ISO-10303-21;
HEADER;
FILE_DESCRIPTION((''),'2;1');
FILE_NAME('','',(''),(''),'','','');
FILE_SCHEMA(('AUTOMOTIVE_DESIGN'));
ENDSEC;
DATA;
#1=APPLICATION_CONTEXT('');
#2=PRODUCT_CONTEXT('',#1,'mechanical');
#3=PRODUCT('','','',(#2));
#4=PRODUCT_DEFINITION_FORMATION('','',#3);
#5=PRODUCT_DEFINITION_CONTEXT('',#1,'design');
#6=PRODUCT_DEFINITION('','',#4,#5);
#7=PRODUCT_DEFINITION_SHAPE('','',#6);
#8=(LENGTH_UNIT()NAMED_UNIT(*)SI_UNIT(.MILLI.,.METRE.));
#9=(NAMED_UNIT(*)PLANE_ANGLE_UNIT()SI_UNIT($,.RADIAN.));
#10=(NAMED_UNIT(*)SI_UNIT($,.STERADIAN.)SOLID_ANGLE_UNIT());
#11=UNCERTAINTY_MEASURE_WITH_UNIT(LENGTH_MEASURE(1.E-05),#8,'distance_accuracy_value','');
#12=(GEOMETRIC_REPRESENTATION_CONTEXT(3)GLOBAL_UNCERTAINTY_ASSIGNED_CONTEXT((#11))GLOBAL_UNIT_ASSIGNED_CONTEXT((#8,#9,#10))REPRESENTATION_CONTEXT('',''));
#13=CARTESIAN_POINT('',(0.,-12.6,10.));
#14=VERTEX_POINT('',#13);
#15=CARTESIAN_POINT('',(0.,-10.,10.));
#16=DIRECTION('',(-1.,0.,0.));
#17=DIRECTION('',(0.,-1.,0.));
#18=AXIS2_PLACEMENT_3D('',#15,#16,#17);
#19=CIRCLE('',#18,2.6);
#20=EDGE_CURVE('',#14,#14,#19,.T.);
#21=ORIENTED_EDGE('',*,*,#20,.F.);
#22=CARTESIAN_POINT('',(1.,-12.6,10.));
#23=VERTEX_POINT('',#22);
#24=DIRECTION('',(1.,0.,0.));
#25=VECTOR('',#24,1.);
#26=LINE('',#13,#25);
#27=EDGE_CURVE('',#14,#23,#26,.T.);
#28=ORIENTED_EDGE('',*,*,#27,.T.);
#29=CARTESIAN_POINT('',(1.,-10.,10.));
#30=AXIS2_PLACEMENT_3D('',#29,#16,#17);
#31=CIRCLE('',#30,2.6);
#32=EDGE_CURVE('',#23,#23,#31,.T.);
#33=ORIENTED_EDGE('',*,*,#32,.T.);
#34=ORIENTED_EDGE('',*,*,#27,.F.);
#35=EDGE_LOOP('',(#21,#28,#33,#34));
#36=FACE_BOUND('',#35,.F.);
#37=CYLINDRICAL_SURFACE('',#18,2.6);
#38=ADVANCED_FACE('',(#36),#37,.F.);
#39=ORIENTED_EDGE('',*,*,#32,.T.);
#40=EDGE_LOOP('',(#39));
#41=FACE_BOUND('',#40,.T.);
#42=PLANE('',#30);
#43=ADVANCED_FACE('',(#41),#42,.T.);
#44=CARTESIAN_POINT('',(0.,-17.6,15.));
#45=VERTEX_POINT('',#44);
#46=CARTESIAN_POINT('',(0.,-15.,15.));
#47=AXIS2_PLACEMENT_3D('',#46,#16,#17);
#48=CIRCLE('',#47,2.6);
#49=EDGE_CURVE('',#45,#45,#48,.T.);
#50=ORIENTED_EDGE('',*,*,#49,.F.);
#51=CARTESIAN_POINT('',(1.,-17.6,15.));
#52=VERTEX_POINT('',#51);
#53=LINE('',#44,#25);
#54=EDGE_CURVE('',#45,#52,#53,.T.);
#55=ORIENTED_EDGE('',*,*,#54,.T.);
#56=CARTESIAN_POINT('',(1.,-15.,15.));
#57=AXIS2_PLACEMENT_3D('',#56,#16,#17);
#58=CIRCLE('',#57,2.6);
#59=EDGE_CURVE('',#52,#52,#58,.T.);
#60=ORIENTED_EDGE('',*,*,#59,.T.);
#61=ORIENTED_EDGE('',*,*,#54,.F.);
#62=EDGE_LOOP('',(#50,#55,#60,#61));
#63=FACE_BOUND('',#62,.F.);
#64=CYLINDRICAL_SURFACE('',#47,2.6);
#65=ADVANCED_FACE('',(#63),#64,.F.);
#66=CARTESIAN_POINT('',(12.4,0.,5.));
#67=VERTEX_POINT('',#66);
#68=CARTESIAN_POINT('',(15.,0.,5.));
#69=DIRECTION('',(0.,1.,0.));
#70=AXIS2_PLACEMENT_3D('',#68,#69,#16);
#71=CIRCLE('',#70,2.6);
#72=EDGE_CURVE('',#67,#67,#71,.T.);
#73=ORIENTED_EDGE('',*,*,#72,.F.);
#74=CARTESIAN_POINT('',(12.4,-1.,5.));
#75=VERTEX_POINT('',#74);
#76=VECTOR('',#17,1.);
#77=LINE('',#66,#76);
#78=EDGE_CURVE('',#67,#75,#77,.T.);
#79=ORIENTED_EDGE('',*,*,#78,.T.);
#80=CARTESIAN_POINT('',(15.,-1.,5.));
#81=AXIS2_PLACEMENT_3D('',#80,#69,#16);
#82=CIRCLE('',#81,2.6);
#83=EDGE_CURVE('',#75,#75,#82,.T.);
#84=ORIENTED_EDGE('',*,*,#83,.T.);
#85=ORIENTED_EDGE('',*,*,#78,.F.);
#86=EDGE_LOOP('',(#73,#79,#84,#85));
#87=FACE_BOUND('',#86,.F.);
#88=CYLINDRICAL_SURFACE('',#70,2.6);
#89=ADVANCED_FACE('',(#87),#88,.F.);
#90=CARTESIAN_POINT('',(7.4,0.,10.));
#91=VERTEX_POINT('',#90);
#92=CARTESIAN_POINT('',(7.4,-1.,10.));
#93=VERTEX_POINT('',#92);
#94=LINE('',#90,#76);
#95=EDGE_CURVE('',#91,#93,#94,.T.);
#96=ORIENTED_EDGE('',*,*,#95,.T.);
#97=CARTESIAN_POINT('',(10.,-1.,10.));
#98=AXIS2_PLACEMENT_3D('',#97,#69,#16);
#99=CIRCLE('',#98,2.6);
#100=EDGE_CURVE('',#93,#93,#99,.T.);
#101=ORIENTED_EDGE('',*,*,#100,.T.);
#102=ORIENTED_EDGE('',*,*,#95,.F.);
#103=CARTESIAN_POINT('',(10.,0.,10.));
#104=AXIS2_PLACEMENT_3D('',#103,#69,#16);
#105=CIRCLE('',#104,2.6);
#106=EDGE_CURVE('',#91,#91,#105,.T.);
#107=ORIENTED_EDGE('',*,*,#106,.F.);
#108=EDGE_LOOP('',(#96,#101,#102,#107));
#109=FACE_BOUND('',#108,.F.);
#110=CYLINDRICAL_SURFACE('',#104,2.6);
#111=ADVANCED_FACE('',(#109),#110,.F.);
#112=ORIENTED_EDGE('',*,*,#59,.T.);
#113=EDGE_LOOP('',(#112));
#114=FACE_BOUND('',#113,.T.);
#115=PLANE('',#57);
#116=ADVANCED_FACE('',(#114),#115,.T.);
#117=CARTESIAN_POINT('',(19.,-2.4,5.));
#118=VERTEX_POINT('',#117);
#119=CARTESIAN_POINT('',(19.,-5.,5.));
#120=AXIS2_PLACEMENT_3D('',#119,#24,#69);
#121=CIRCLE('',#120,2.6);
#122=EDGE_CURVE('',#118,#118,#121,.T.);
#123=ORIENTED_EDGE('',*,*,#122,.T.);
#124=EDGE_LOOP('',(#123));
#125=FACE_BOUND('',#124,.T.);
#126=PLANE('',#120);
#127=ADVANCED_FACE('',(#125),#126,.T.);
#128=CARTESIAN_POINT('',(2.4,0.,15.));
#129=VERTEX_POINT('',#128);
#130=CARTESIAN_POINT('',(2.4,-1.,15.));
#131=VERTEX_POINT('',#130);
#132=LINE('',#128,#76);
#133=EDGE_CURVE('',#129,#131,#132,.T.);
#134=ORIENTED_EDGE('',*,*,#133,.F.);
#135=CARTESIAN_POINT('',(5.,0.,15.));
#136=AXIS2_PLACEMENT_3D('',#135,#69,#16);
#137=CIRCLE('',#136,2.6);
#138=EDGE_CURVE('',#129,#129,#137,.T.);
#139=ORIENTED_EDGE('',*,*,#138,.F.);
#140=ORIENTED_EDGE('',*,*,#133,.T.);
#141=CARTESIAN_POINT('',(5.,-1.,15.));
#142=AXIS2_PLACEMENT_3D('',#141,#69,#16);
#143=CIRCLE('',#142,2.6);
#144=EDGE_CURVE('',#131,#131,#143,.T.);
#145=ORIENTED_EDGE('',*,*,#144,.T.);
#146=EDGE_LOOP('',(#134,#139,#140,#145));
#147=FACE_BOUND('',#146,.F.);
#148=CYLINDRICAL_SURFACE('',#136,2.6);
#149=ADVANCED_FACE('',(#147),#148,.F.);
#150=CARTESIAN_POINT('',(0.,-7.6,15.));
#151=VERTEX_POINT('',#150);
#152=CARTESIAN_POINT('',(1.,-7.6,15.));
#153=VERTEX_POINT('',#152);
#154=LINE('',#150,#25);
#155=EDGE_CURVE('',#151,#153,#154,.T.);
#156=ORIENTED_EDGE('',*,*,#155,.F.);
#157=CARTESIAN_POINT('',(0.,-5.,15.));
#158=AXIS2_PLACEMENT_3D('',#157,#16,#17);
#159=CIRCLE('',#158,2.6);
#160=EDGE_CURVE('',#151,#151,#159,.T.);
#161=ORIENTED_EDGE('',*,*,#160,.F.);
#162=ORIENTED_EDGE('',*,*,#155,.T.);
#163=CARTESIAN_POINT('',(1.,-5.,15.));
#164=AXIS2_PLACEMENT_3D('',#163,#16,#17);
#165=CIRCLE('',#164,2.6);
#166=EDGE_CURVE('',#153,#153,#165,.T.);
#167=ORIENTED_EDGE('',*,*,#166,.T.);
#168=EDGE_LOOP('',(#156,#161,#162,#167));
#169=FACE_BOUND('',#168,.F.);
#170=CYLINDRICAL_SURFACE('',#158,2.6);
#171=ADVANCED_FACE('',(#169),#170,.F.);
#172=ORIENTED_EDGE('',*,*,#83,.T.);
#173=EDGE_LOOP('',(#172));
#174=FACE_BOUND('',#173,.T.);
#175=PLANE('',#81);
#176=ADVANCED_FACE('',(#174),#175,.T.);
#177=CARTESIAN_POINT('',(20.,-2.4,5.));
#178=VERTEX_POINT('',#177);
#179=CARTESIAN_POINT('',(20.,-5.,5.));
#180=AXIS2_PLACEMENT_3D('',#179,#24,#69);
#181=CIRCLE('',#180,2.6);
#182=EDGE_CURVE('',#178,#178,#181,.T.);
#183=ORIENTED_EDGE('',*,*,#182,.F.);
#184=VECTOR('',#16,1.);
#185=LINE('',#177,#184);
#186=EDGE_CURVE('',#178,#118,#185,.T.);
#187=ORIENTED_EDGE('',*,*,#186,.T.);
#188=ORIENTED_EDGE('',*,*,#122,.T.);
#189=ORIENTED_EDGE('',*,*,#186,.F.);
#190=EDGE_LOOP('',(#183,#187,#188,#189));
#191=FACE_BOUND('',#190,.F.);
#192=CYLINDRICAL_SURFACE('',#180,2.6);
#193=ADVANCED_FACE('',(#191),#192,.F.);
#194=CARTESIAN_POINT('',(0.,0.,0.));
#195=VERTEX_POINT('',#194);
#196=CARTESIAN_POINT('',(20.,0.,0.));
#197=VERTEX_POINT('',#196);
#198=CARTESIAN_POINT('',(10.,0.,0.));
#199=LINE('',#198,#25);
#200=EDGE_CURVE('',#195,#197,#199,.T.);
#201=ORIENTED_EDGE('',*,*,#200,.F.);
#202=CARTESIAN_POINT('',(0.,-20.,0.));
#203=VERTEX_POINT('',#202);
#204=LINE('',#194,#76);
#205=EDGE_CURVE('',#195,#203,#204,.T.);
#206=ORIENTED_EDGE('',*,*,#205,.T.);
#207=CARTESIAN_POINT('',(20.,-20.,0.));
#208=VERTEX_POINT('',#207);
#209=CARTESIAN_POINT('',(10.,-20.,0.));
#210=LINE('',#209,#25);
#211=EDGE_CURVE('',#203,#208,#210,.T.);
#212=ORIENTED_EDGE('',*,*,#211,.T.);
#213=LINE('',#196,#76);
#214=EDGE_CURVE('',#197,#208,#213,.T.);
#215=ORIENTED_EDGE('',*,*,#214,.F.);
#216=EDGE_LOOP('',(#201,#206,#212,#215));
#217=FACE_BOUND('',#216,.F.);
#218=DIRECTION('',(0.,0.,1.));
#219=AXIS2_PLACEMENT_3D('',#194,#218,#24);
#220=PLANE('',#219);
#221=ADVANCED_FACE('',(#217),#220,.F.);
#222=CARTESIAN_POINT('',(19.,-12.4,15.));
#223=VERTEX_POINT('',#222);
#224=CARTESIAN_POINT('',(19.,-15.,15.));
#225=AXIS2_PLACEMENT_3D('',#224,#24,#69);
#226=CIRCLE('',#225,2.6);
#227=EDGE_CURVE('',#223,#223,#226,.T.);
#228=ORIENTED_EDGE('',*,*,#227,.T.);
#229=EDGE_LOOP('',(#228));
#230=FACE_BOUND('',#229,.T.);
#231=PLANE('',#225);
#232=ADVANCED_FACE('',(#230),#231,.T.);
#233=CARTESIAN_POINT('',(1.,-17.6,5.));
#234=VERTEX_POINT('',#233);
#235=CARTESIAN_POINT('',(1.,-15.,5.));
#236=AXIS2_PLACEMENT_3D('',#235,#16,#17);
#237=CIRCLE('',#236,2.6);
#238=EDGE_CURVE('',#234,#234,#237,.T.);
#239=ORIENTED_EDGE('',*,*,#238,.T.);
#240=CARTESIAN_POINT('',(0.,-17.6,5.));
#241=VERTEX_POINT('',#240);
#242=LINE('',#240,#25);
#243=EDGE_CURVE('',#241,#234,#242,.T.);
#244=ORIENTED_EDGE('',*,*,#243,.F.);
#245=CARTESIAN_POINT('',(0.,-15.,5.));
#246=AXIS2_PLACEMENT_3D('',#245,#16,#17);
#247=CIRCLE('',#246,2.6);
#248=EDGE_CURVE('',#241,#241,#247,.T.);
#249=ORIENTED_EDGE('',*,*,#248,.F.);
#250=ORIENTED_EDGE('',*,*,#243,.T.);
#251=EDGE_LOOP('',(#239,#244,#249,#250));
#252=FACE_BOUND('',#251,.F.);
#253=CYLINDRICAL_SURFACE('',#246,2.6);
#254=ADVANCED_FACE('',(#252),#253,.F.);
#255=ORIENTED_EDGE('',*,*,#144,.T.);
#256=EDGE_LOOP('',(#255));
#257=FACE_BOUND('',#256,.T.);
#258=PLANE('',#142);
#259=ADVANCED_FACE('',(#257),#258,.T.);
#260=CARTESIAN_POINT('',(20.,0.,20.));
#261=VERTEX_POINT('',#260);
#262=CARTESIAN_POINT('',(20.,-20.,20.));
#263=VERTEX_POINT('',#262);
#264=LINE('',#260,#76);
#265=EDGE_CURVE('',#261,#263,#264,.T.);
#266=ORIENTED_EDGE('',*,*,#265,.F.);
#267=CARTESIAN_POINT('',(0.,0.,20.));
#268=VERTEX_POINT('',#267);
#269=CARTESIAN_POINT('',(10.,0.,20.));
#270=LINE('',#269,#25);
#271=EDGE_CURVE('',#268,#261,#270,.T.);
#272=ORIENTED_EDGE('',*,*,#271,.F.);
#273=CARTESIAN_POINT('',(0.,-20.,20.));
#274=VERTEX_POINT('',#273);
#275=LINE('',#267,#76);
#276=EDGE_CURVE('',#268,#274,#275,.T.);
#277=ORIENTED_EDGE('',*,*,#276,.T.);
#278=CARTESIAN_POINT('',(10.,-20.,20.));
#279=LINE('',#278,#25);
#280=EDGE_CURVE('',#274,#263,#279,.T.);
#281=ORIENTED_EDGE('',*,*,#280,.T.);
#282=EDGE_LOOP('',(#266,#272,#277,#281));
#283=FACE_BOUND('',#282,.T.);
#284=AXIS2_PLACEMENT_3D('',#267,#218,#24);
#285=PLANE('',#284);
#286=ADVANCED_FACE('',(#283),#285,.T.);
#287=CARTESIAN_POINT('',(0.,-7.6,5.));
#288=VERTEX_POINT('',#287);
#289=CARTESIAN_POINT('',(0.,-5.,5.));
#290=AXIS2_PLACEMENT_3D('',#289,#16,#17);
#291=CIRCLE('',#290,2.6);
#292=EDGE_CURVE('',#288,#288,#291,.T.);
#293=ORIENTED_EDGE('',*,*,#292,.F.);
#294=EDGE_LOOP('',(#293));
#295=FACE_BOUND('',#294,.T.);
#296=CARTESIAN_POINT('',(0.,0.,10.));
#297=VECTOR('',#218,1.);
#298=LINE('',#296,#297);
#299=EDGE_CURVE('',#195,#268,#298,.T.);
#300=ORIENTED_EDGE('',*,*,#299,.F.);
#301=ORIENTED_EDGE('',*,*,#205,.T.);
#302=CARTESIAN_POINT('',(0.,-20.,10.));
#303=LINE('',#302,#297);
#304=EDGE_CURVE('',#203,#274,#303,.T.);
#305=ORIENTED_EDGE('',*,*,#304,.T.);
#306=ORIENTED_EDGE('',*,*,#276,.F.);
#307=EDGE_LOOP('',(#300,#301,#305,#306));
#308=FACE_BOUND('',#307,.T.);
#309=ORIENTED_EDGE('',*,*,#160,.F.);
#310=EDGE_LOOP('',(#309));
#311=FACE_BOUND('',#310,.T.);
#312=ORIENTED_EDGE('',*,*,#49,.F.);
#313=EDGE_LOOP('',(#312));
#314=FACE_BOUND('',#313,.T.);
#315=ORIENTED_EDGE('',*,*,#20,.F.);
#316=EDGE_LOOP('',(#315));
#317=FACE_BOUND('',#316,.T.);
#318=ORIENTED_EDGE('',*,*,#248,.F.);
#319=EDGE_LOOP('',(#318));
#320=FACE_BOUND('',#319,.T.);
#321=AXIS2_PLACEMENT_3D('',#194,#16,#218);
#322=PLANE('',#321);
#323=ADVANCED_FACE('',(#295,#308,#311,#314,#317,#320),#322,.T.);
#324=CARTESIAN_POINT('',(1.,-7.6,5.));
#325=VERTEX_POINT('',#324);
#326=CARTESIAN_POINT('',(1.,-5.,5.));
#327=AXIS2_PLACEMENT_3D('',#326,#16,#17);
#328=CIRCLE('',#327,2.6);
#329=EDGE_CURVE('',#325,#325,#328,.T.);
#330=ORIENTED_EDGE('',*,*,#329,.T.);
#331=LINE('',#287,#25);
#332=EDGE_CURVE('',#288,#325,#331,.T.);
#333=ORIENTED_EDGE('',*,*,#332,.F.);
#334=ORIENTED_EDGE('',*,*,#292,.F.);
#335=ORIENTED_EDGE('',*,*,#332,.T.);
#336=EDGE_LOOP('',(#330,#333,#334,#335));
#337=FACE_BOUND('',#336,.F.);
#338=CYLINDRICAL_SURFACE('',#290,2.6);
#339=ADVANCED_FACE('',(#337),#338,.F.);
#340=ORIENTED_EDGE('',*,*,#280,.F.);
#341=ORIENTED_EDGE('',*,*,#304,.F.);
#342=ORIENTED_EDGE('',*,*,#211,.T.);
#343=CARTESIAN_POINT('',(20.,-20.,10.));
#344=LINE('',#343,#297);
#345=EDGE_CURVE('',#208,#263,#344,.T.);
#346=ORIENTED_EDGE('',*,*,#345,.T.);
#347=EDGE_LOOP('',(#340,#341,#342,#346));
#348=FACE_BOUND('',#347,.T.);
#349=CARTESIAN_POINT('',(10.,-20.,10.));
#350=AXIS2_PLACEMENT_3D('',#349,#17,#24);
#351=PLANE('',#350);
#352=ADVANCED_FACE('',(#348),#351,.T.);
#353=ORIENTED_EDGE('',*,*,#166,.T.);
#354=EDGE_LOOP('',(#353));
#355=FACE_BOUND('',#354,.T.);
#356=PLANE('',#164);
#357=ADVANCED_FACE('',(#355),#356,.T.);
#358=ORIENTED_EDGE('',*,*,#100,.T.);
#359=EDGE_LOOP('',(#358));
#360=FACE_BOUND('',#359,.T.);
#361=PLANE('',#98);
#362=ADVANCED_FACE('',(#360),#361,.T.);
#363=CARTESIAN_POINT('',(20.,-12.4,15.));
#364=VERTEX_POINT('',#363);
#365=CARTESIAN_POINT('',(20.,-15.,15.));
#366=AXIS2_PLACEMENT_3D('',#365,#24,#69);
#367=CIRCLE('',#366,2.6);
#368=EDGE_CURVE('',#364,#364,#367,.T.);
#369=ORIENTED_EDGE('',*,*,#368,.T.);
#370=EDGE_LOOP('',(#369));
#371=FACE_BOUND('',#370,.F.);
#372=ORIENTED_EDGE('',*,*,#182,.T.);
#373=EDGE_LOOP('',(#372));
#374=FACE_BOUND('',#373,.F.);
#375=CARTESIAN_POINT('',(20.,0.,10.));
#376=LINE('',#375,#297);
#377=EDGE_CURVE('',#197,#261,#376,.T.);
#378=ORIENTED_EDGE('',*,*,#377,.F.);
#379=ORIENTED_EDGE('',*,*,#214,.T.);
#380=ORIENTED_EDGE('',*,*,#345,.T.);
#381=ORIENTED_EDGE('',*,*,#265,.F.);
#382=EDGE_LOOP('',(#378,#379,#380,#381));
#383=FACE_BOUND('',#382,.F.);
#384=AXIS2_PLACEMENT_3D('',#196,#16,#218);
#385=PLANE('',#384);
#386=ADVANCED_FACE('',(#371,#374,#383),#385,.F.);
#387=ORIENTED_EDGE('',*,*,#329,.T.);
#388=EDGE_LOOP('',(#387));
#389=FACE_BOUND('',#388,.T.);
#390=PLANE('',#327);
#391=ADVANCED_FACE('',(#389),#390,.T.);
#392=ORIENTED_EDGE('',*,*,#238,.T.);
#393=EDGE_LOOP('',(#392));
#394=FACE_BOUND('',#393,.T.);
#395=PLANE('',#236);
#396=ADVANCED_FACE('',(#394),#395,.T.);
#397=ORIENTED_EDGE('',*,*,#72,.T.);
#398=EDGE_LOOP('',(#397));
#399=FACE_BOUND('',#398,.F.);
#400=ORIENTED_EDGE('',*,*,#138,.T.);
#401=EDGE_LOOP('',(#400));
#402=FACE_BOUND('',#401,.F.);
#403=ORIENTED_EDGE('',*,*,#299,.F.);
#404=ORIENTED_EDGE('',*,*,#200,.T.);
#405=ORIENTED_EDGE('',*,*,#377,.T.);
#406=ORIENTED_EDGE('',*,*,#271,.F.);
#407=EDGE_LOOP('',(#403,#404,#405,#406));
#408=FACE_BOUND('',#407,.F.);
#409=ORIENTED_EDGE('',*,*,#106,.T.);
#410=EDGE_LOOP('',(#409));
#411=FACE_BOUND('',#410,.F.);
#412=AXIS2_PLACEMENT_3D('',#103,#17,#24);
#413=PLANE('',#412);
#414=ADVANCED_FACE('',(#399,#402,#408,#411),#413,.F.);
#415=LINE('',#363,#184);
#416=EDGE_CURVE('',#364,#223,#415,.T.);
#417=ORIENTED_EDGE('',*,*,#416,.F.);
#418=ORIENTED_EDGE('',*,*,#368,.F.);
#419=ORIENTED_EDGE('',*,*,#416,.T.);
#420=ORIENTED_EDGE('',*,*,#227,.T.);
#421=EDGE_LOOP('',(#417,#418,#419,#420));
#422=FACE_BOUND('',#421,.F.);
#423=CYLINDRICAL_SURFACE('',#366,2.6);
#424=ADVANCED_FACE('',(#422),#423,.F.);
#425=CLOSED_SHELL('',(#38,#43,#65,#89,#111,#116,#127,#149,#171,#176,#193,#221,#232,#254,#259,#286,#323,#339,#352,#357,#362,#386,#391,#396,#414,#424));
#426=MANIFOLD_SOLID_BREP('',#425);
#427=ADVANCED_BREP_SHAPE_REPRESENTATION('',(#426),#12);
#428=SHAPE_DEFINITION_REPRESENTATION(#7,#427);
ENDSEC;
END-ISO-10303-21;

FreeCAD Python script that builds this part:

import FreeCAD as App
import Part
import Sketcher
from FreeCAD import Vector


def add_polygon(sketch, points):
    """Adds a closed chain of lines whose ends are joined by coincident constraints."""
    first, n = sketch.GeometryCount, len(points)
    for a, b in zip(points, points[1:] + points[:1]):
        sketch.addGeometry(Part.LineSegment(App.Vector(*a, 0), App.Vector(*b, 0)), False)
    for i in range(n):
        sketch.addConstraint(Sketcher.Constraint("Coincident", first + i, 2, first + (i + 1) % n, 1))

doc = App.newDocument("Part")
params = doc.addObject("Spreadsheet::Sheet", "Params")
for row, (alias, value) in enumerate([
    ("sketch1_width", "20 mm"),
    ("pad1_length", "20 mm"),
    ("sketch2_diameter", "5.2 mm"),
    ("pocket1_length", "1 mm"),
    ("sketch3_diameter", "5.2 mm"),
    ("pocket2_length", "1 mm"),
    ("sketch4_diameter", "5.2 mm"),
    ("pocket3_length", "1 mm"),
], start=1):
    params.set(f"A{row}", alias)
    params.set(f"B{row}", "=" + value)
    params.setAlias(f"B{row}", alias)

body = doc.addObject("PartDesign::Body", "Body")

sketch1 = doc.addObject("Sketcher::SketchObject", "Sketch")
body.addObject(sketch1)
sketch1.AttachmentSupport = (doc.XZ_Plane, [""])
sketch1.MapMode = "FlatFace"
add_polygon(sketch1, [(0, 20), (0, 0), (20, 0), (20, 20)])
sketch1.addConstraint(Sketcher.Constraint("Vertical", 0))
sketch1.addConstraint(Sketcher.Constraint("Horizontal", 1))
sketch1.addConstraint(Sketcher.Constraint("Vertical", 2))
sketch1.addConstraint(Sketcher.Constraint("Horizontal", 3))
sketch1.addConstraint(Sketcher.Constraint("Coincident", 0, 2, -1, 1))
sketch1.addConstraint(Sketcher.Constraint("Equal", 3, 0))
sketch1.addConstraint(Sketcher.Constraint("DistanceX", 1, 1, 1, 2, 20.0))
sketch1.setExpression("Constraints[10]", "Params.sketch1_width")
pad1 = doc.addObject("PartDesign::Pad", "Pad")
body.addObject(pad1)
pad1.Profile = sketch1
pad1.setExpression("Length", "Params.pad1_length")

sketch2 = doc.addObject("Sketcher::SketchObject", "Sketch001")
body.addObject(sketch2)
sketch2.AttachmentSupport = (doc.YZ_Plane, [""])
sketch2.MapMode = "FlatFace"
sketch2.addGeometry(Part.Circle(Vector(-10, 10, 0), Vector(0, 0, 1), 2.6), False)
sketch2.addGeometry(Part.Circle(Vector(-5, 15, 0), Vector(0, 0, 1), 2.6), False)
sketch2.addGeometry(Part.Circle(Vector(-15, 15, 0), Vector(0, 0, 1), 2.6), False)
sketch2.addGeometry(Part.Circle(Vector(-15, 5, 0), Vector(0, 0, 1), 2.6), False)
sketch2.addGeometry(Part.Circle(Vector(-5, 5, 0), Vector(0, 0, 1), 2.6), False)
sketch2.addConstraint(Sketcher.Constraint("Equal", 0, 1))
sketch2.addConstraint(Sketcher.Constraint("Equal", 1, 2))
sketch2.addConstraint(Sketcher.Constraint("Equal", 2, 3))
sketch2.addConstraint(Sketcher.Constraint("Equal", 3, 4))
sketch2.addConstraint(Sketcher.Constraint("Horizontal", 1, 3, 2, 3))
sketch2.addConstraint(Sketcher.Constraint("Horizontal", 3, 3, 4, 3))
sketch2.addConstraint(Sketcher.Constraint("Vertical", 2, 3, 3, 3))
sketch2.addConstraint(Sketcher.Constraint("Vertical", 1, 3, 4, 3))
sketch2.addConstraint(Sketcher.Constraint("Diameter", 0, 5.2))
sketch2.addConstraint(Sketcher.Constraint("DistanceX", 0, 3, -1, 1, 10.0))
sketch2.addConstraint(Sketcher.Constraint("DistanceY", -1, 1, 0, 3, 10.0))
sketch2.addConstraint(Sketcher.Constraint("DistanceX", 1, 3, -1, 1, 5.0))
sketch2.addConstraint(Sketcher.Constraint("DistanceY", -1, 1, 1, 3, 15.0))
sketch2.addConstraint(Sketcher.Constraint("DistanceX", 2, 3, -1, 1, 15.0))
sketch2.addConstraint(Sketcher.Constraint("DistanceY", -1, 1, 3, 3, 5.0))
sketch2.setExpression("Constraints[8]", "Params.sketch2_diameter")
pocket1 = doc.addObject("PartDesign::Pocket", "Pocket")
body.addObject(pocket1)
pocket1.Profile = sketch2
pocket1.setExpression("Length", "Params.pocket1_length")
pocket1.Reversed = True

sketch3 = doc.addObject("Sketcher::SketchObject", "Sketch002")
body.addObject(sketch3)
sketch3.AttachmentSupport = (doc.YZ_Plane, [""])
sketch3.MapMode = "FlatFace"
sketch3.AttachmentOffset = App.Placement(Vector(0, 0, 20), App.Rotation())
sketch3.addGeometry(Part.Circle(Vector(-15, 15, 0), Vector(0, 0, 1), 2.6), False)
sketch3.addGeometry(Part.Circle(Vector(-5, 5, 0), Vector(0, 0, 1), 2.6), False)
sketch3.addConstraint(Sketcher.Constraint("Equal", 0, 1))
sketch3.addConstraint(Sketcher.Constraint("Diameter", 0, 5.2))
sketch3.addConstraint(Sketcher.Constraint("DistanceX", 0, 3, -1, 1, 15.0))
sketch3.addConstraint(Sketcher.Constraint("DistanceY", -1, 1, 0, 3, 15.0))
sketch3.addConstraint(Sketcher.Constraint("DistanceX", 1, 3, -1, 1, 5.0))
sketch3.addConstraint(Sketcher.Constraint("DistanceY", -1, 1, 1, 3, 5.0))
sketch3.setExpression("Constraints[1]", "Params.sketch3_diameter")
pocket2 = doc.addObject("PartDesign::Pocket", "Pocket001")
body.addObject(pocket2)
pocket2.Profile = sketch3
pocket2.setExpression("Length", "Params.pocket2_length")

sketch4 = doc.addObject("Sketcher::SketchObject", "Sketch003")
body.addObject(sketch4)
sketch4.AttachmentSupport = (doc.XZ_Plane, [""])
sketch4.MapMode = "FlatFace"
sketch4.addGeometry(Part.Circle(Vector(10, 10, 0), Vector(0, 0, 1), 2.6), False)
sketch4.addGeometry(Part.Circle(Vector(5, 15, 0), Vector(0, 0, 1), 2.6), False)
sketch4.addGeometry(Part.Circle(Vector(15, 5, 0), Vector(0, 0, 1), 2.6), False)
sketch4.addConstraint(Sketcher.Constraint("Equal", 0, 1))
sketch4.addConstraint(Sketcher.Constraint("Equal", 1, 2))
sketch4.addConstraint(Sketcher.Constraint("Diameter", 0, 5.2))
sketch4.addConstraint(Sketcher.Constraint("DistanceX", -1, 1, 0, 3, 10.0))
sketch4.addConstraint(Sketcher.Constraint("DistanceY", -1, 1, 0, 3, 10.0))
sketch4.addConstraint(Sketcher.Constraint("DistanceX", -1, 1, 1, 3, 5.0))
sketch4.addConstraint(Sketcher.Constraint("DistanceY", -1, 1, 1, 3, 15.0))
sketch4.addConstraint(Sketcher.Constraint("DistanceX", -1, 1, 2, 3, 15.0))
sketch4.addConstraint(Sketcher.Constraint("DistanceY", -1, 1, 2, 3, 5.0))
sketch4.setExpression("Constraints[2]", "Params.sketch4_diameter")
pocket3 = doc.addObject("PartDesign::Pocket", "Pocket002")
body.addObject(pocket3)
pocket3.Profile = sketch4
pocket3.setExpression("Length", "Params.pocket3_length")
pocket3.Reversed = True

doc.recompute()
